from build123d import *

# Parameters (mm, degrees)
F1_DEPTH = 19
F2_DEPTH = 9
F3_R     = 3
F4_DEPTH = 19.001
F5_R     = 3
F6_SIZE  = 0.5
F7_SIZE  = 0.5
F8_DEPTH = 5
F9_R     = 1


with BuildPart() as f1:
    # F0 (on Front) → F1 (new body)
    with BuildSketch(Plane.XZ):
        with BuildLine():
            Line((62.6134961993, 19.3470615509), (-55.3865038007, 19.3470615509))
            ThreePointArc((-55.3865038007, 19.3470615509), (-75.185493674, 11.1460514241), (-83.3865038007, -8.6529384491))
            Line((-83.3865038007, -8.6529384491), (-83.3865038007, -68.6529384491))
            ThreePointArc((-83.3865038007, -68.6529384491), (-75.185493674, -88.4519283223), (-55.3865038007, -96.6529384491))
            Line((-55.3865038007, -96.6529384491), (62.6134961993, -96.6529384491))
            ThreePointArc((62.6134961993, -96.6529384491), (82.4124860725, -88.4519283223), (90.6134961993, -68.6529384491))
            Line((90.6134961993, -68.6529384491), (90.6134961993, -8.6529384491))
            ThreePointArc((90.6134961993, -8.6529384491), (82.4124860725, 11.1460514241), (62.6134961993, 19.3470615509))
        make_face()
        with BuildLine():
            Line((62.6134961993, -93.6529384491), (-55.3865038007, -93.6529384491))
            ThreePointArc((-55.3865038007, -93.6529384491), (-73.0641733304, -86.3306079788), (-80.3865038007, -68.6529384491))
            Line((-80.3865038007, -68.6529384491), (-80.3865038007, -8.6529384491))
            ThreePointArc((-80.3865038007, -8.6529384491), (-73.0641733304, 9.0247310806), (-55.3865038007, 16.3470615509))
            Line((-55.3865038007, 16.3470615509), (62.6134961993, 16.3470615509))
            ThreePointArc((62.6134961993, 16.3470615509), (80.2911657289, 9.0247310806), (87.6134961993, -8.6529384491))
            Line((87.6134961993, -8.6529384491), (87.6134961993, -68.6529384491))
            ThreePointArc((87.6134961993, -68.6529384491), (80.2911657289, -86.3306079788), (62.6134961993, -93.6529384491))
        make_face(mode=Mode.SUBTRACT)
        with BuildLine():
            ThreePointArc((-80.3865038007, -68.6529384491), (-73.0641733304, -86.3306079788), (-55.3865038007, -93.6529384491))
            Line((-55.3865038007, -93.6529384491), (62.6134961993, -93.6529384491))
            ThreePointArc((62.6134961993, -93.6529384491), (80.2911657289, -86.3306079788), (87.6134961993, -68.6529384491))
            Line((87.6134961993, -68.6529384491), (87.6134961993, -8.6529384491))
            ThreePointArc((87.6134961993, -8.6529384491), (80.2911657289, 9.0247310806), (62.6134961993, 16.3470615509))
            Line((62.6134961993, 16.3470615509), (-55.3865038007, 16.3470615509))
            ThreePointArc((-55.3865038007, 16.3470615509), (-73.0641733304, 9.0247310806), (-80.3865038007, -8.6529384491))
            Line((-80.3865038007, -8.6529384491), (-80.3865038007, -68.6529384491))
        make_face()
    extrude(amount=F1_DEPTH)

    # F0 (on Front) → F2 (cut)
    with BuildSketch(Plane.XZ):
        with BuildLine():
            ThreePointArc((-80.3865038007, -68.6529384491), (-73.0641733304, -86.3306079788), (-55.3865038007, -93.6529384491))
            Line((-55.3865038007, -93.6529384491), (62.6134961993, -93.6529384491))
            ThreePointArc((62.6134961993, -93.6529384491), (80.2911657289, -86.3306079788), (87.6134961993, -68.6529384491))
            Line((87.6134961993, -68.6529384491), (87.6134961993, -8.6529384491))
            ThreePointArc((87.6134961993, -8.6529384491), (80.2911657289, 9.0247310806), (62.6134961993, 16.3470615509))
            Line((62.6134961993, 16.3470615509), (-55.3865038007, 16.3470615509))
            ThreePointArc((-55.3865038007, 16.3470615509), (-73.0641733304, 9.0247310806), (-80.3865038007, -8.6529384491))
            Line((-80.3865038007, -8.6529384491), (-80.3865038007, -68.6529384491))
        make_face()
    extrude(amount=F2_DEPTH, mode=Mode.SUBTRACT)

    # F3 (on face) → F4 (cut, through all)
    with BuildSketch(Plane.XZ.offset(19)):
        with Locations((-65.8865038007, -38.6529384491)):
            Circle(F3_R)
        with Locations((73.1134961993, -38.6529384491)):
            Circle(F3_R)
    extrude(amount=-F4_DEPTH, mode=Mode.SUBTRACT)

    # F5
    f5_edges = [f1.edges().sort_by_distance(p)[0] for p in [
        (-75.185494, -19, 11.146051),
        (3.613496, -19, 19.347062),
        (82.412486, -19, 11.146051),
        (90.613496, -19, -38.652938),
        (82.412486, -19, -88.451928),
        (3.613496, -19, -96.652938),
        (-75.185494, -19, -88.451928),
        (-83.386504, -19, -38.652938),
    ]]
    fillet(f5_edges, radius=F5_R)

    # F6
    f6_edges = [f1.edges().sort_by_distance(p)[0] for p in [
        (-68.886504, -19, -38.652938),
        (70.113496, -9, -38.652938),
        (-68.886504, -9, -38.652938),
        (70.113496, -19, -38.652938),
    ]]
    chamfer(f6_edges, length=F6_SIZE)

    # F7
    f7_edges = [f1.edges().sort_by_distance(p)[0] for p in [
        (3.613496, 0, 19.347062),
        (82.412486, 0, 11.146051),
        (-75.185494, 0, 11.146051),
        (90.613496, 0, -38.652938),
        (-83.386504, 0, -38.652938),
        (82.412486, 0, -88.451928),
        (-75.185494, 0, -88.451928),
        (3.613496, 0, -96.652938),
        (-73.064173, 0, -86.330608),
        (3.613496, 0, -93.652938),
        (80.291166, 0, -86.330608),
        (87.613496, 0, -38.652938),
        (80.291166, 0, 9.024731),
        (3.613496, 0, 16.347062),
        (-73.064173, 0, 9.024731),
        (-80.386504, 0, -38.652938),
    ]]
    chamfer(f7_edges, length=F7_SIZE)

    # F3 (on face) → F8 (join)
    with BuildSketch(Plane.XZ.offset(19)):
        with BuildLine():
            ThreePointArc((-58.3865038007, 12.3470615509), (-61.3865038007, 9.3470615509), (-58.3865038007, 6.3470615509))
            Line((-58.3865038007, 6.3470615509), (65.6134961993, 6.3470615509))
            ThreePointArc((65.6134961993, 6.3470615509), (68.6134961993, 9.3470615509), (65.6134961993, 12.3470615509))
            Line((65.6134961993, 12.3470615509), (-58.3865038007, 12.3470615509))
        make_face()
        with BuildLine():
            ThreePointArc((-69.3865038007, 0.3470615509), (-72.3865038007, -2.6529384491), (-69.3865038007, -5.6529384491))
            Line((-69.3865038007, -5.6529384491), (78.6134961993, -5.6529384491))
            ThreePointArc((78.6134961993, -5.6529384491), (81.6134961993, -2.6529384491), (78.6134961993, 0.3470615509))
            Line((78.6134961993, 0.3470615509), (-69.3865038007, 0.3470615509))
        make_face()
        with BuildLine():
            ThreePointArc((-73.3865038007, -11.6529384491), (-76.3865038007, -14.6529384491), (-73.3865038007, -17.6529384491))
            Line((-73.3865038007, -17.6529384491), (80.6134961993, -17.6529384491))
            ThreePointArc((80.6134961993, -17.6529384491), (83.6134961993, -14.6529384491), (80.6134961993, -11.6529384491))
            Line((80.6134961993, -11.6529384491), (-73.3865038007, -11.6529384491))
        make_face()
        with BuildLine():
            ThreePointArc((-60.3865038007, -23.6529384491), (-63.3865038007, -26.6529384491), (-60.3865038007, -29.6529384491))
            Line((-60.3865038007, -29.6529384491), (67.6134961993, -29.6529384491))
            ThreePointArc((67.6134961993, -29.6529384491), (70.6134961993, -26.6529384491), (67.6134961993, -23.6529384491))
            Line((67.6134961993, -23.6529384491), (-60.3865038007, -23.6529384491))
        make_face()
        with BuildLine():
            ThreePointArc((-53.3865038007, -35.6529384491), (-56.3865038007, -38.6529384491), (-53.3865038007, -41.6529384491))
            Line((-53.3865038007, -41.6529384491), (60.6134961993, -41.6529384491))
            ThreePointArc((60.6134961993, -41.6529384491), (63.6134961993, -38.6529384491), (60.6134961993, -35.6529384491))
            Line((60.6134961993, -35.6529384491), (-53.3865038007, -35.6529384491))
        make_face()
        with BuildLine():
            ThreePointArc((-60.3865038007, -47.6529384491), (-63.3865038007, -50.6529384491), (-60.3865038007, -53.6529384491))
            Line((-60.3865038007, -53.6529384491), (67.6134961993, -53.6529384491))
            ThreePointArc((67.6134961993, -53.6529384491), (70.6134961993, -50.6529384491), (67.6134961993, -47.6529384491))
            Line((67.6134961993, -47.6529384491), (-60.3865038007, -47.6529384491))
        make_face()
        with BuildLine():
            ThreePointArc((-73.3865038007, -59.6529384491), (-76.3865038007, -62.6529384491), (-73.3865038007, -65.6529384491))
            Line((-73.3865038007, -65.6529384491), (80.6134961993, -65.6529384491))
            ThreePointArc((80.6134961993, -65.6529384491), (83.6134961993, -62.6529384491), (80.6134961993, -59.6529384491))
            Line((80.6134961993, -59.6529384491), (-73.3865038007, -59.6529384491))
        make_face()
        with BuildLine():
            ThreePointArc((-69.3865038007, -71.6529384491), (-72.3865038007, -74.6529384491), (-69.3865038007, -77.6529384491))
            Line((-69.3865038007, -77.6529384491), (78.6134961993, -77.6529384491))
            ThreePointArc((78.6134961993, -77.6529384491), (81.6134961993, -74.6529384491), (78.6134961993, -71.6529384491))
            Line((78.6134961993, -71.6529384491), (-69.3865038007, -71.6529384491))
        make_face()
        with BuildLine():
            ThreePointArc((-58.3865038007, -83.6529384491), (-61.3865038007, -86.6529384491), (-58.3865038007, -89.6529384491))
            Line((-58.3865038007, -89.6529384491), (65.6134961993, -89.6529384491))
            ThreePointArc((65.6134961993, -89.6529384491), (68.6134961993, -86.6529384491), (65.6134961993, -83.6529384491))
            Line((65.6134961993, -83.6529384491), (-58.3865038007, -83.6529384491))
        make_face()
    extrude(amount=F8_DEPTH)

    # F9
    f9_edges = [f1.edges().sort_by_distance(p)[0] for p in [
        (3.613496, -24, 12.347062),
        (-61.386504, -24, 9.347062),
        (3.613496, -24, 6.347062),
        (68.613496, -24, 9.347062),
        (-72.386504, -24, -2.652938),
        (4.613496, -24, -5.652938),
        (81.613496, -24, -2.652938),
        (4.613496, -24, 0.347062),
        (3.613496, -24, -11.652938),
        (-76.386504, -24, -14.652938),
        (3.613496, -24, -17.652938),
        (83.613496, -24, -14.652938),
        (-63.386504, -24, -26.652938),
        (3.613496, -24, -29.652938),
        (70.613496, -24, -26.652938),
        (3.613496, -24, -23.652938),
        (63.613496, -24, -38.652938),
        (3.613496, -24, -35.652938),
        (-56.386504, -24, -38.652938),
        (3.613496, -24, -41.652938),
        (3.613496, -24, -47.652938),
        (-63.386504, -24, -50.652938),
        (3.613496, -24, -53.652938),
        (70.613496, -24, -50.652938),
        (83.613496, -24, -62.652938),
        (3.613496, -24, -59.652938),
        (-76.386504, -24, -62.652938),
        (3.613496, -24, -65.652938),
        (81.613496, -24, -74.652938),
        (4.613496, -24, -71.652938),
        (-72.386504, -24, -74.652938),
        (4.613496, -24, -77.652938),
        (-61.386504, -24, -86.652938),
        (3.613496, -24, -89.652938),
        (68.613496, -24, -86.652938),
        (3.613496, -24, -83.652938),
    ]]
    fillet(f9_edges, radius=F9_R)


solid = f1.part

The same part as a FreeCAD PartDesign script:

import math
import FreeCAD as App
import Part
import Sketcher

V = App.Vector


def edges_at(feature, points):
    """Names of the edges that pass closest to the given points."""
    edges = feature.Shape.Edges
    near = lambda p: min(range(len(edges)), key=lambda i: edges[i].distToShape(Part.Vertex(*p))[0])
    return sorted({f"Edge{near(p) + 1}" for p in points})

doc = App.newDocument("Part")
body = doc.addObject("PartDesign::Body", "Body")

# Sketch on XZ plane
sketch1 = doc.addObject("Sketcher::SketchObject", "Sketch")
body.addObject(sketch1)
sketch1.AttachmentSupport = (doc.XZ_Plane, [""])
sketch1.MapMode = "FlatFace"
sketch1.addGeometry([
    Part.LineSegment(V(63, 19, 0), V(-55, 19, 0)),  # 0
    Part.ArcOfCircle(Part.Circle(V(-55, -9, 0), V(0, 0, 1), 28), math.radians(90), math.radians(180)),  # 1
    Part.LineSegment(V(-83, -9, 0), V(-83, -69, 0)),  # 2
    Part.ArcOfCircle(Part.Circle(V(-55, -69, 0), V(0, 0, 1), 28), math.radians(180), math.radians(270)),  # 3
    Part.LineSegment(V(-55, -97, 0), V(63, -97, 0)),  # 4
    Part.ArcOfCircle(Part.Circle(V(63, -69, 0), V(0, 0, 1), 28), math.radians(-90), math.radians(0)),  # 5
    Part.LineSegment(V(91, -69, 0), V(91, -9, 0)),  # 6
    Part.ArcOfCircle(Part.Circle(V(63, -9, 0), V(0, 0, 1), 28), math.radians(0), math.radians(90)),  # 7
], False)
sketch1.addConstraint([
    Sketcher.Constraint("Tangent", 0, 2, 1, 1),
    Sketcher.Constraint("Tangent", 1, 2, 2, 1),
    Sketcher.Constraint("Tangent", 2, 2, 3, 1),
    Sketcher.Constraint("Tangent", 3, 2, 4, 1),
    Sketcher.Constraint("Tangent", 4, 2, 5, 1),
    Sketcher.Constraint("Tangent", 5, 2, 6, 1),
    Sketcher.Constraint("Tangent", 6, 2, 7, 1),
    Sketcher.Constraint("Tangent", 7, 2, 0, 1),
    Sketcher.Constraint("Horizontal", 0),
    Sketcher.Constraint("Vertical", 2),
    Sketcher.Constraint("Horizontal", 4),
    Sketcher.Constraint("Vertical", 6),
    Sketcher.Constraint("Equal", 1, 3),
    Sketcher.Constraint("Equal", 3, 5),
    Sketcher.Constraint("Equal", 5, 7),
    Sketcher.Constraint("Radius", 1, 28.0),
    Sketcher.Constraint("DistanceX", 0, 2, 0, 1, 118.0),
    Sketcher.Constraint("DistanceY", 2, 2, 2, 1, 60.0),
    Sketcher.Constraint("DistanceY", 1, 3, -1, 1, 8.652938),
    Sketcher.Constraint("DistanceX", 1, 3, -1, 1, 55.386504),
])
pad1 = doc.addObject("PartDesign::Pad", "Pad")
body.addObject(pad1)
pad1.Profile = sketch1
pad1.Length = 19

# Sketch on XZ plane
sketch2 = doc.addObject("Sketcher::SketchObject", "Sketch001")
body.addObject(sketch2)
sketch2.AttachmentSupport = (doc.XZ_Plane, [""])
sketch2.MapMode = "FlatFace"
sketch2.addGeometry([
    Part.ArcOfCircle(Part.Circle(V(-55, -69, 0), V(0, 0, 1), 25), math.radians(180), math.radians(270)),  # 0
    Part.LineSegment(V(-55, -94, 0), V(63, -94, 0)),  # 1
    Part.ArcOfCircle(Part.Circle(V(63, -69, 0), V(0, 0, 1), 25), math.radians(-90), math.radians(0)),  # 2
    Part.LineSegment(V(88, -69, 0), V(88, -9, 0)),  # 3
    Part.ArcOfCircle(Part.Circle(V(63, -9, 0), V(0, 0, 1), 25), math.radians(0), math.radians(90)),  # 4
    Part.LineSegment(V(63, 16, 0), V(-55, 16, 0)),  # 5
    Part.ArcOfCircle(Part.Circle(V(-55, -9, 0), V(0, 0, 1), 25), math.radians(90), math.radians(180)),  # 6
    Part.LineSegment(V(-80, -9, 0), V(-80, -69, 0)),  # 7
], False)
sketch2.addConstraint([
    Sketcher.Constraint("Tangent", 0, 2, 1, 1),
    Sketcher.Constraint("Tangent", 1, 2, 2, 1),
    Sketcher.Constraint("Tangent", 2, 2, 3, 1),
    Sketcher.Constraint("Tangent", 3, 2, 4, 1),
    Sketcher.Constraint("Tangent", 4, 2, 5, 1),
    Sketcher.Constraint("Tangent", 5, 2, 6, 1),
    Sketcher.Constraint("Tangent", 6, 2, 7, 1),
    Sketcher.Constraint("Tangent", 7, 2, 0, 1),
    Sketcher.Constraint("Horizontal", 1),
    Sketcher.Constraint("Vertical", 3),
    Sketcher.Constraint("Horizontal", 5),
    Sketcher.Constraint("Vertical", 7),
    Sketcher.Constraint("Equal", 0, 2),
    Sketcher.Constraint("Equal", 2, 4),
    Sketcher.Constraint("Equal", 4, 6),
    Sketcher.Constraint("Radius", 0, 25.0),
    Sketcher.Constraint("DistanceX", 1, 1, 1, 2, 118.0),
    Sketcher.Constraint("DistanceY", 3, 1, 3, 2, 60.0),
    Sketcher.Constraint("DistanceY", 0, 3, -1, 1, 68.652938),
    Sketcher.Constraint("DistanceX", 0, 3, -1, 1, 55.386504),
])
pocket1 = doc.addObject("PartDesign::Pocket", "Pocket")
body.addObject(pocket1)
pocket1.Profile = sketch2
pocket1.Length = 9
pocket1.Reversed = True

# Sketch on XZ plane
sketch3 = doc.addObject("Sketcher::SketchObject", "Sketch002")
body.addObject(sketch3)
sketch3.AttachmentSupport = (doc.XZ_Plane, [""])
sketch3.MapMode = "FlatFace"
sketch3.AttachmentOffset = App.Placement(V(0, 0, 19), App.Rotation())
sketch3.addGeometry([
    Part.Circle(V(-65.9, -38.7, 0), V(0, 0, 1), 3),
    Part.Circle(V(73.1, -38.7, 0), V(0, 0, 1), 3),
], False)
sketch3.addConstraint([
    Sketcher.Constraint("Equal", 0, 1),
    Sketcher.Constraint("Horizontal", 0, 3, 1, 3),
    Sketcher.Constraint("Diameter", 0, 6.0),
    Sketcher.Constraint("DistanceX", 0, 3, 1, 3, 139.0),
    Sketcher.Constraint("DistanceY", 0, 3, -1, 1, 38.652938),
    Sketcher.Constraint("DistanceX", 0, 3, -1, 1, 65.886504),
])
pocket2 = doc.addObject("PartDesign::Pocket", "Pocket001")
body.addObject(pocket2)
pocket2.Profile = sketch3
pocket2.Type = "ThroughAll"
doc.recompute()

fillet = doc.addObject("PartDesign::Fillet", "Fillet")
body.addObject(fillet)
fillet.Base = (pocket2, edges_at(pocket2, [
    (-75.185, -19, 11.146),
    (3.613, -19, 19.347),
    (82.412, -19, 11.146),
    (90.613, -19, -38.653),
    (82.412, -19, -88.452),
    (3.613, -19, -96.653),
    (-75.185, -19, -88.452),
    (-83.387, -19, -38.653),
]))
fillet.Radius = 3
doc.recompute()

chamfer = doc.addObject("PartDesign::Chamfer", "Chamfer")
body.addObject(chamfer)
chamfer.Base = (fillet, edges_at(fillet, [
    (-68.887, -19, -38.653),
    (70.113, -9, -38.653),
    (-68.887, -9, -38.653),
    (70.113, -19, -38.653),
]))
chamfer.Size = 0.5
doc.recompute()

chamfer2 = doc.addObject("PartDesign::Chamfer", "Chamfer001")
body.addObject(chamfer2)
chamfer2.Base = (chamfer, edges_at(chamfer, [
    (3.613, 0, 19.347),
    (82.412, 0, 11.146),
    (-75.185, 0, 11.146),
    (90.613, 0, -38.653),
    (-83.387, 0, -38.653),
    (82.412, 0, -88.452),
    (-75.185, 0, -88.452),
    (3.613, 0, -96.653),
    (-73.064, 0, -86.331),
    (3.613, 0, -93.653),
    (80.291, 0, -86.331),
    (87.613, 0, -38.653),
    (80.291, 0, 9.025),
    (3.613, 0, 16.347),
    (-73.064, 0, 9.025),
    (-80.387, 0, -38.653),
]))
chamfer2.Size = 0.5

# Sketch on XZ plane
sketch4 = doc.addObject("Sketcher::SketchObject", "Sketch003")
body.addObject(sketch4)
sketch4.AttachmentSupport = (doc.XZ_Plane, [""])
sketch4.MapMode = "FlatFace"
sketch4.AttachmentOffset = App.Placement(V(0, 0, 19), App.Rotation())
sketch4.addGeometry([
    Part.ArcOfCircle(Part.Circle(V(-58.4, 9.3, 0), V(0, 0, 1), 3), math.radians(90), math.radians(270)),  # 0
    Part.LineSegment(V(-58.4, 6.3, 0), V(65.6, 6.3, 0)),  # 1
    Part.ArcOfCircle(Part.Circle(V(65.6, 9.3, 0), V(0, 0, 1), 3), math.radians(-90), math.radians(90)),  # 2
    Part.LineSegment(V(65.6, 12.3, 0), V(-58.4, 12.3, 0)),  # 3
    Part.ArcOfCircle(Part.Circle(V(-69.4, -2.7, 0), V(0, 0, 1), 3), math.radians(90), math.radians(270)),  # 4
    Part.LineSegment(V(-69.4, -5.7, 0), V(78.6, -5.7, 0)),  # 5
    Part.ArcOfCircle(Part.Circle(V(78.6, -2.7, 0), V(0, 0, 1), 3), math.radians(-90), math.radians(90)),  # 6
    Part.LineSegment(V(78.6, 0.3, 0), V(-69.4, 0.3, 0)),  # 7
    Part.ArcOfCircle(Part.Circle(V(-73.4, -14.7, 0), V(0, 0, 1), 3), math.radians(90), math.radians(270)),  # 8
    Part.LineSegment(V(-73.4, -17.7, 0), V(80.6, -17.7, 0)),  # 9
    Part.ArcOfCircle(Part.Circle(V(80.6, -14.7, 0), V(0, 0, 1), 3), math.radians(-90), math.radians(90)),  # 10
    Part.LineSegment(V(80.6, -11.7, 0), V(-73.4, -11.7, 0)),  # 11
    Part.ArcOfCircle(Part.Circle(V(-60.4, -26.7, 0), V(0, 0, 1), 3), math.radians(90), math.radians(270)),  # 12
    Part.LineSegment(V(-60.4, -29.7, 0), V(67.6, -29.7, 0)),  # 13
    Part.ArcOfCircle(Part.Circle(V(67.6, -26.7, 0), V(0, 0, 1), 3), math.radians(-90), math.radians(90)),  # 14
    Part.LineSegment(V(67.6, -23.7, 0), V(-60.4, -23.7, 0)),  # 15
    Part.ArcOfCircle(Part.Circle(V(-53.4, -38.7, 0), V(0, 0, 1), 3), math.radians(90), math.radians(270)),  # 16
    Part.LineSegment(V(-53.4, -41.7, 0), V(60.6, -41.7, 0)),  # 17
    Part.ArcOfCircle(Part.Circle(V(60.6, -38.7, 0), V(0, 0, 1), 3), math.radians(-90), math.radians(90)),  # 18
    Part.LineSegment(V(60.6, -35.7, 0), V(-53.4, -35.7, 0)),  # 19
    Part.ArcOfCircle(Part.Circle(V(-60.4, -50.7, 0), V(0, 0, 1), 3), math.radians(90), math.radians(270)),  # 20
    Part.LineSegment(V(-60.4, -53.7, 0), V(67.6, -53.7, 0)),  # 21
    Part.ArcOfCircle(Part.Circle(V(67.6, -50.7, 0), V(0, 0, 1), 3), math.radians(-90), math.radians(90)),  # 22
    Part.LineSegment(V(67.6, -47.7, 0), V(-60.4, -47.7, 0)),  # 23
    Part.ArcOfCircle(Part.Circle(V(-73.4, -62.7, 0), V(0, 0, 1), 3), math.radians(90), math.radians(270)),  # 24
    Part.LineSegment(V(-73.4, -65.7, 0), V(80.6, -65.7, 0)),  # 25
    Part.ArcOfCircle(Part.Circle(V(80.6, -62.7, 0), V(0, 0, 1), 3), math.radians(-90), math.radians(90)),  # 26
    Part.LineSegment(V(80.6, -59.7, 0), V(-73.4, -59.7, 0)),  # 27
    Part.ArcOfCircle(Part.Circle(V(-69.4, -74.7, 0), V(0, 0, 1), 3), math.radians(90), math.radians(270)),  # 28
    Part.LineSegment(V(-69.4, -77.7, 0), V(78.6, -77.7, 0)),  # 29
    Part.ArcOfCircle(Part.Circle(V(78.6, -74.7, 0), V(0, 0, 1), 3), math.radians(-90), math.radians(90)),  # 30
    Part.LineSegment(V(78.6, -71.7, 0), V(-69.4, -71.7, 0)),  # 31
    Part.ArcOfCircle(Part.Circle(V(-58.4, -86.7, 0), V(0, 0, 1), 3), math.radians(90), math.radians(270)),  # 32
    Part.LineSegment(V(-58.4, -89.7, 0), V(65.6, -89.7, 0)),  # 33
    Part.ArcOfCircle(Part.Circle(V(65.6, -86.7, 0), V(0, 0, 1), 3), math.radians(-90), math.radians(90)),  # 34
    Part.LineSegment(V(65.6, -83.7, 0), V(-58.4, -83.7, 0)),  # 35
], False)
sketch4.addConstraint([
    Sketcher.Constraint("Tangent", 0, 2, 1, 1),
    Sketcher.Constraint("Tangent", 1, 2, 2, 1),
    Sketcher.Constraint("Tangent", 2, 2, 3, 1),
    Sketcher.Constraint("Tangent", 3, 2, 0, 1),
    Sketcher.Constraint("Tangent", 4, 2, 5, 1),
    Sketcher.Constraint("Tangent", 5, 2, 6, 1),
    Sketcher.Constraint("Tangent", 6, 2, 7, 1),
    Sketcher.Constraint("Tangent", 7, 2, 4, 1),
    Sketcher.Constraint("Tangent", 8, 2, 9, 1),
    Sketcher.Constraint("Tangent", 9, 2, 10, 1),
    Sketcher.Constraint("Tangent", 10, 2, 11, 1),
    Sketcher.Constraint("Tangent", 11, 2, 8, 1),
    Sketcher.Constraint("Tangent", 12, 2, 13, 1),
    Sketcher.Constraint("Tangent", 13, 2, 14, 1),
    Sketcher.Constraint("Tangent", 14, 2, 15, 1),
    Sketcher.Constraint("Tangent", 15, 2, 12, 1),
    Sketcher.Constraint("Tangent", 16, 2, 17, 1),
    Sketcher.Constraint("Tangent", 17, 2, 18, 1),
    Sketcher.Constraint("Tangent", 18, 2, 19, 1),
    Sketcher.Constraint("Tangent", 19, 2, 16, 1),
    Sketcher.Constraint("Tangent", 20, 2, 21, 1),
    Sketcher.Constraint("Tangent", 21, 2, 22, 1),
    Sketcher.Constraint("Tangent", 22, 2, 23, 1),
    Sketcher.Constraint("Tangent", 23, 2, 20, 1),
    Sketcher.Constraint("Tangent", 24, 2, 25, 1),
    Sketcher.Constraint("Tangent", 25, 2, 26, 1),
    Sketcher.Constraint("Tangent", 26, 2, 27, 1),
    Sketcher.Constraint("Tangent", 27, 2, 24, 1),
    Sketcher.Constraint("Tangent", 28, 2, 29, 1),
    Sketcher.Constraint("Tangent", 29, 2, 30, 1),
    Sketcher.Constraint("Tangent", 30, 2, 31, 1),
    Sketcher.Constraint("Tangent", 31, 2, 28, 1),
    Sketcher.Constraint("Tangent", 32, 2, 33, 1),
    Sketcher.Constraint("Tangent", 33, 2, 34, 1),
    Sketcher.Constraint("Tangent", 34, 2, 35, 1),
    Sketcher.Constraint("Tangent", 35, 2, 32, 1),
    Sketcher.Constraint("Horizontal", 1),
    Sketcher.Constraint("Horizontal", 3),
    Sketcher.Constraint("Horizontal", 5),
    Sketcher.Constraint("Horizontal", 7),
    Sketcher.Constraint("Horizontal", 9),
    Sketcher.Constraint("Horizontal", 11),
    Sketcher.Constraint("Horizontal", 13),
    Sketcher.Constraint("Horizontal", 15),
    Sketcher.Constraint("Horizontal", 17),
    Sketcher.Constraint("Horizontal", 19),
    Sketcher.Constraint("Horizontal", 21),
    Sketcher.Constraint("Horizontal", 23),
    Sketcher.Constraint("Horizontal", 25),
    Sketcher.Constraint("Horizontal", 27),
    Sketcher.Constraint("Horizontal", 29),
    Sketcher.Constraint("Horizontal", 31),
    Sketcher.Constraint("Horizontal", 33),
    Sketcher.Constraint("Horizontal", 35),
    Sketcher.Constraint("Equal", 2, 4),
    Sketcher.Constraint("Equal", 6, 8),
    Sketcher.Constraint("Equal", 10, 12),
    Sketcher.Constraint("Equal", 14, 16),
    Sketcher.Constraint("Equal", 18, 20),
    Sketcher.Constraint("Equal", 22, 24),
    Sketcher.Constraint("Equal", 26, 28),
    Sketcher.Constraint("Equal", 30, 32),
    Sketcher.Constraint("Vertical", 12, 3, 20, 3),
    Sketcher.Constraint("Vertical", 14, 3, 22, 3),
    Sketcher.Constraint("Vertical", 8, 3, 24, 3),
    Sketcher.Constraint("Vertical", 10, 3, 26, 3),
    Sketcher.Constraint("Vertical", 4, 3, 28, 3),
    Sketcher.Constraint("Vertical", 6, 3, 30, 3),
    Sketcher.Constraint("Vertical", 0, 3, 32, 3),
    Sketcher.Constraint("Vertical", 2, 3, 34, 3),
    Sketcher.Constraint("Radius", 0, 3.0),
    Sketcher.Constraint("DistanceX", 1, 1, 1, 2, 124.0),
    Sketcher.Constraint("DistanceX", 5, 1, 5, 2, 148.0),
    Sketcher.Constraint("DistanceX", 9, 1, 9, 2, 154.0),
    Sketcher.Constraint("DistanceX", 13, 1, 13, 2, 128.0),
    Sketcher.Constraint("DistanceX", 17, 1, 17, 2, 114.0),
    Sketcher.Constraint("DistanceX", 4, 3, 0, 3, 11.0),
    Sketcher.Constraint("DistanceY", 4, 3, 0, 3, 12.0),
    Sketcher.Constraint("DistanceX", 8, 3, 4, 3, 4.0),
    Sketcher.Constraint("DistanceY", 8, 3, 4, 3, 12.0),
    Sketcher.Constraint("DistanceX", 8, 3, 12, 3, 13.0),
    Sketcher.Constraint("DistanceY", 12, 3, 8, 3, 12.0),
    Sketcher.Constraint("DistanceX", 12, 3, 16, 3, 7.0),
    Sketcher.Constraint("DistanceY", 16, 3, 12, 3, 12.0),
    Sketcher.Constraint("DistanceY", 20, 3, 16, 3, 12.0),
    Sketcher.Constraint("DistanceY", 24, 3, 20, 3, 12.0),
    Sketcher.Constraint("DistanceY", 28, 3, 24, 3, 12.0),
    Sketcher.Constraint("DistanceY", 32, 3, 28, 3, 12.0),
    Sketcher.Constraint("DistanceY", -1, 1, 0, 3, 9.347062),
    Sketcher.Constraint("DistanceX", 0, 3, -1, 1, 58.386504),
])
pad2 = doc.addObject("PartDesign::Pad", "Pad001")
body.addObject(pad2)
pad2.Profile = sketch4
pad2.Length = 5
doc.recompute()

fillet2 = doc.addObject("PartDesign::Fillet", "Fillet001")
body.addObject(fillet2)
fillet2.Base = (pad2, edges_at(pad2, [
    (3.613, -24, 12.347),
    (-61.387, -24, 9.347),
    (3.613, -24, 6.347),
    (68.613, -24, 9.347),
    (-72.387, -24, -2.653),
    (4.613, -24, -5.653),
    (81.613, -24, -2.653),
    (4.613, -24, 0.347),
    (3.613, -24, -11.653),
    (-76.387, -24, -14.653),
    (3.613, -24, -17.653),
    (83.613, -24, -14.653),
    (-63.387, -24, -26.653),
    (3.613, -24, -29.653),
    (70.613, -24, -26.653),
    (3.613, -24, -23.653),
    (63.613, -24, -38.653),
    (3.613, -24, -35.653),
    (-56.387, -24, -38.653),
    (3.613, -24, -41.653),
    (3.613, -24, -47.653),
    (-63.387, -24, -50.653),
    (3.613, -24, -53.653),
    (70.613, -24, -50.653),
    (83.613, -24, -62.653),
    (3.613, -24, -59.653),
    (-76.387, -24, -62.653),
    (3.613, -24, -65.653),
    (81.613, -24, -74.653),
    (4.613, -24, -71.653),
    (-72.387, -24, -74.653),
    (4.613, -24, -77.653),
    (-61.387, -24, -86.653),
    (3.613, -24, -89.653),
    (68.613, -24, -86.653),
    (3.613, -24, -83.653),
]))
fillet2.Radius = 1

doc.recompute()
